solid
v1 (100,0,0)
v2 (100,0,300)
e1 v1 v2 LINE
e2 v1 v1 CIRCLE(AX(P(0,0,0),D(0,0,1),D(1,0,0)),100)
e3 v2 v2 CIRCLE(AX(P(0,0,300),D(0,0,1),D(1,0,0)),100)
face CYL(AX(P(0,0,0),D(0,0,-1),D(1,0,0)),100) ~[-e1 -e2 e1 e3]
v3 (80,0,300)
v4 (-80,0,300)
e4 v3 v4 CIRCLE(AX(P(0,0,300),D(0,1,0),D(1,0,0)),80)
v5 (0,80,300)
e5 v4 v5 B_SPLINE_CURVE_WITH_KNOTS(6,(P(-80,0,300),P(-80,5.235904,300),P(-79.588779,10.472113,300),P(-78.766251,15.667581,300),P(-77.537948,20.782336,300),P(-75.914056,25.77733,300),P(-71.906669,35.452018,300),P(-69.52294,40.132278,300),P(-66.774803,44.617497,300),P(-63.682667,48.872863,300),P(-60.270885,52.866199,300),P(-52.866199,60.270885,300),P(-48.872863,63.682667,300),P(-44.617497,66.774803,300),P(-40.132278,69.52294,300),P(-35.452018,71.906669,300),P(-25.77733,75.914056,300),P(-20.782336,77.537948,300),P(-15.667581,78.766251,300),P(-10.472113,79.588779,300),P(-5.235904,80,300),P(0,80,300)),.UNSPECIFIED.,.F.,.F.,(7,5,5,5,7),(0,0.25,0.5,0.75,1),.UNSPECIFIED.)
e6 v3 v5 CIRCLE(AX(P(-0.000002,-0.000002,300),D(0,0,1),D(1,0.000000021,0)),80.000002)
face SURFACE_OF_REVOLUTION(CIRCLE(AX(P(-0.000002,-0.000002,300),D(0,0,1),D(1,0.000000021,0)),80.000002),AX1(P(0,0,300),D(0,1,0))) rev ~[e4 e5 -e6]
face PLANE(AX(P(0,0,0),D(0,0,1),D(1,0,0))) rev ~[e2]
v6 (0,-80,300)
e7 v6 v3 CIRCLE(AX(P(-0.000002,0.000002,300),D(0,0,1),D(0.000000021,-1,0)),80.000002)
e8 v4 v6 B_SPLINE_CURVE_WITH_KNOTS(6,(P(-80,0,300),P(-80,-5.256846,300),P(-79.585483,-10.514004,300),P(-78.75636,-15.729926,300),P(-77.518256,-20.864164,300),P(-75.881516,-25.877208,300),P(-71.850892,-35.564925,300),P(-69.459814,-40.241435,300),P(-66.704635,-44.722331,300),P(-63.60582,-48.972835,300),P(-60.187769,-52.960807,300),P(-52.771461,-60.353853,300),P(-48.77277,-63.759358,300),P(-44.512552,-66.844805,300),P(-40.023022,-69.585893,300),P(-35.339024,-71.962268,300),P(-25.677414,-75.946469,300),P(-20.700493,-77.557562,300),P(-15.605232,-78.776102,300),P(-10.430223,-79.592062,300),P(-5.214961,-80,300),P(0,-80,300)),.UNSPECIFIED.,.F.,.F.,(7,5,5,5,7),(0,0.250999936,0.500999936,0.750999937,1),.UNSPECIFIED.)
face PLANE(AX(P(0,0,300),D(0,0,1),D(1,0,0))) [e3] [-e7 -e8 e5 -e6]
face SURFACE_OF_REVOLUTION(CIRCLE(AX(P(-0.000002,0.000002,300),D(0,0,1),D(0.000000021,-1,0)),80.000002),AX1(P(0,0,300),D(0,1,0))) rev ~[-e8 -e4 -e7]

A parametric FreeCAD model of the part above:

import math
import FreeCAD as App
import Part
import Sketcher
from FreeCAD import Vector

doc = App.newDocument("Part")
body = doc.addObject("PartDesign::Body", "Body")

# Sketch on XY plane
sketch1 = body.newObject("Sketcher::SketchObject", "Sketch")
sketch1.AttachmentSupport = (doc.getObject("XY_Plane"), [""])
sketch1.MapMode = "FlatFace"
sketch1.addGeometry(Part.Circle(Vector(0, 0, 0), Vector(0, 0, 1), 100), False)
sketch1.addConstraint(Sketcher.Constraint("Coincident", 0, 3, -1, 1))
sketch1.addConstraint(Sketcher.Constraint("Diameter", 0, 200.0))
pad1 = body.newObject("PartDesign::Pad", "Pad")
pad1.Profile = sketch1
pad1.Length = 300

# Sketch on XY plane
sketch2 = body.newObject("Sketcher::SketchObject", "Sketch001")
sketch2.AttachmentSupport = (doc.getObject("XY_Plane"), [""])
sketch2.MapMode = "FlatFace"
sketch2.AttachmentOffset = App.Placement(Vector(0, 0, 300), App.Rotation())
sketch2.addGeometry(Part.ArcOfCircle(Part.Circle(Vector(0, 0, 0), Vector(0, 0, 1), 80), math.radians(-90), math.radians(0)), False)
sketch2.addGeometry(Part.ArcOfCircle(Part.Circle(Vector(0, 0, 0), Vector(0, 0, 1), 80), math.radians(0), math.radians(90)), False)
sketch2.addGeometry(Part.LineSegment(Vector(0, 80, 0), Vector(0, -80, 0)), False)
sketch2.addConstraint(Sketcher.Constraint("Tangent", 0, 2, 1, 1))
sketch2.addConstraint(Sketcher.Constraint("Coincident", 1, 2, 2, 1))
sketch2.addConstraint(Sketcher.Constraint("Coincident", 2, 2, 0, 1))
sketch2.addConstraint(Sketcher.Constraint("Vertical", 2))
sketch2.addConstraint(Sketcher.Constraint("Coincident", 0, 3, -1, 1))
sketch2.addConstraint(Sketcher.Constraint("Equal", 0, 1))
sketch2.addConstraint(Sketcher.Constraint("PointOnObject", 0, 2, -1))
sketch2.addConstraint(Sketcher.Constraint("PointOnObject", 1, 2, -2))
sketch2.addConstraint(Sketcher.Constraint("Radius", 0, 80.000002))
groove = body.newObject("PartDesign::Groove", "Groove")
groove.Profile = sketch2
groove.ReferenceAxis = (sketch2, ["V_Axis"])
groove.Angle = 360

doc.recompute()
